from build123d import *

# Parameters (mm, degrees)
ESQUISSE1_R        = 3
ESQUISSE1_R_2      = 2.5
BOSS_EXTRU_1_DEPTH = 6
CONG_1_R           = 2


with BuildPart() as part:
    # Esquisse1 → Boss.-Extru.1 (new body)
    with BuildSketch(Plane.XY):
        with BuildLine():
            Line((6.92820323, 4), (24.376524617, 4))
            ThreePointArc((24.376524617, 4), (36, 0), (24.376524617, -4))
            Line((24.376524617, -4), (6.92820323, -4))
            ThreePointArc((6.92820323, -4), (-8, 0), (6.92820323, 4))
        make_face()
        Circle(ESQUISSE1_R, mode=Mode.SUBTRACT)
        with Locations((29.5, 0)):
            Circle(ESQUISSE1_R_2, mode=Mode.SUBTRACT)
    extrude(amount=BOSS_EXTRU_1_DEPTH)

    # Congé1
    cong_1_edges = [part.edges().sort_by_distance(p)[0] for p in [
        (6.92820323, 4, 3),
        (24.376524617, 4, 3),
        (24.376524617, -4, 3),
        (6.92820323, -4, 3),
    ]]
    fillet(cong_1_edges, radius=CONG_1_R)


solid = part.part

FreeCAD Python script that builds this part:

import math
import FreeCAD as App
import Part
import Sketcher

V = App.Vector
Q = App.Units.Quantity


def edges_at(feature, points):
    """Names of the edges that pass closest to the given points."""
    edges = feature.Shape.Edges
    near = lambda p: min(range(len(edges)), key=lambda i: edges[i].distToShape(Part.Vertex(*p))[0])
    return sorted({f"Edge{near(p) + 1}" for p in points})

doc = App.newDocument("Part")
body = doc.addObject("PartDesign::Body", "Body")

# Sketch on XY plane
sketch1 = doc.addObject("Sketcher::SketchObject", "Sketch")
body.addObject(sketch1)
sketch1.AttachmentSupport = (doc.XY_Plane, [""])
sketch1.MapMode = "FlatFace"
sketch1.addGeometry(Part.LineSegment(V(24.4, 4, 0), V(6.9, 4, 0)), False)
sketch1.addGeometry(Part.ArcOfCircle(Part.Circle(V(0, 0, 0), V(0, 0, 1), 8), math.radians(30), math.radians(330)), False)
sketch1.addGeometry(Part.LineSegment(V(6.9, -4, 0), V(24.4, -4, 0)), False)
sketch1.addGeometry(Part.ArcOfCircle(Part.Circle(V(29.5, 0, 0), V(0, 0, 1), 6.5), math.radians(-142), math.radians(142)), False)
sketch1.addGeometry(Part.Circle(V(29.5, 0, 0), V(0, 0, 1), 2.5), False)
sketch1.addGeometry(Part.Circle(V(0, 0, 0), V(0, 0, 1), 3), False)
sketch1.addConstraint(Sketcher.Constraint("Coincident", 0, 2, 1, 1))
sketch1.addConstraint(Sketcher.Constraint("Coincident", 1, 2, 2, 1))
sketch1.addConstraint(Sketcher.Constraint("Coincident", 2, 2, 3, 1))
sketch1.addConstraint(Sketcher.Constraint("Coincident", 3, 2, 0, 1))
sketch1.addConstraint(Sketcher.Constraint("Horizontal", 0))
sketch1.addConstraint(Sketcher.Constraint("Horizontal", 2))
sketch1.addConstraint(Sketcher.Constraint("Coincident", 1, 3, -1, 1))
sketch1.addConstraint(Sketcher.Constraint("Coincident", 5, 3, -1, 1))
sketch1.addConstraint(Sketcher.Constraint("Coincident", 4, 3, 3, 3))
sketch1.addConstraint(Sketcher.Constraint("Symmetric", 2, 2, 3, 2, -1))
sketch1.addConstraint(Sketcher.Constraint("Diameter", 4, Q("5 mm")))
sketch1.addConstraint(Sketcher.Constraint("Diameter", 5, Q("6 mm")))
sketch1.addConstraint(Sketcher.Constraint("Radius", 1, Q("8 mm")))
sketch1.addConstraint(Sketcher.Constraint("Radius", 3, Q("6.5 mm")))
sketch1.addConstraint(Sketcher.Constraint("DistanceY", -1, 1, 0, 2, Q("4 mm")))
sketch1.addConstraint(Sketcher.Constraint("DistanceX", -1, 1, 3, 3, Q("29.5 mm")))
pad1 = doc.addObject("PartDesign::Pad", "Pad")
body.addObject(pad1)
pad1.Profile = sketch1
pad1.Length = 6
doc.recompute()

fillet = doc.addObject("PartDesign::Fillet", "Fillet")
body.addObject(fillet)
fillet.Base = (pad1, edges_at(pad1, [
    (6.928, 4, 3),
    (24.377, 4, 3),
    (24.377, -4, 3),
    (6.928, -4, 3),
]))
fillet.Radius = 2

doc.recompute()
